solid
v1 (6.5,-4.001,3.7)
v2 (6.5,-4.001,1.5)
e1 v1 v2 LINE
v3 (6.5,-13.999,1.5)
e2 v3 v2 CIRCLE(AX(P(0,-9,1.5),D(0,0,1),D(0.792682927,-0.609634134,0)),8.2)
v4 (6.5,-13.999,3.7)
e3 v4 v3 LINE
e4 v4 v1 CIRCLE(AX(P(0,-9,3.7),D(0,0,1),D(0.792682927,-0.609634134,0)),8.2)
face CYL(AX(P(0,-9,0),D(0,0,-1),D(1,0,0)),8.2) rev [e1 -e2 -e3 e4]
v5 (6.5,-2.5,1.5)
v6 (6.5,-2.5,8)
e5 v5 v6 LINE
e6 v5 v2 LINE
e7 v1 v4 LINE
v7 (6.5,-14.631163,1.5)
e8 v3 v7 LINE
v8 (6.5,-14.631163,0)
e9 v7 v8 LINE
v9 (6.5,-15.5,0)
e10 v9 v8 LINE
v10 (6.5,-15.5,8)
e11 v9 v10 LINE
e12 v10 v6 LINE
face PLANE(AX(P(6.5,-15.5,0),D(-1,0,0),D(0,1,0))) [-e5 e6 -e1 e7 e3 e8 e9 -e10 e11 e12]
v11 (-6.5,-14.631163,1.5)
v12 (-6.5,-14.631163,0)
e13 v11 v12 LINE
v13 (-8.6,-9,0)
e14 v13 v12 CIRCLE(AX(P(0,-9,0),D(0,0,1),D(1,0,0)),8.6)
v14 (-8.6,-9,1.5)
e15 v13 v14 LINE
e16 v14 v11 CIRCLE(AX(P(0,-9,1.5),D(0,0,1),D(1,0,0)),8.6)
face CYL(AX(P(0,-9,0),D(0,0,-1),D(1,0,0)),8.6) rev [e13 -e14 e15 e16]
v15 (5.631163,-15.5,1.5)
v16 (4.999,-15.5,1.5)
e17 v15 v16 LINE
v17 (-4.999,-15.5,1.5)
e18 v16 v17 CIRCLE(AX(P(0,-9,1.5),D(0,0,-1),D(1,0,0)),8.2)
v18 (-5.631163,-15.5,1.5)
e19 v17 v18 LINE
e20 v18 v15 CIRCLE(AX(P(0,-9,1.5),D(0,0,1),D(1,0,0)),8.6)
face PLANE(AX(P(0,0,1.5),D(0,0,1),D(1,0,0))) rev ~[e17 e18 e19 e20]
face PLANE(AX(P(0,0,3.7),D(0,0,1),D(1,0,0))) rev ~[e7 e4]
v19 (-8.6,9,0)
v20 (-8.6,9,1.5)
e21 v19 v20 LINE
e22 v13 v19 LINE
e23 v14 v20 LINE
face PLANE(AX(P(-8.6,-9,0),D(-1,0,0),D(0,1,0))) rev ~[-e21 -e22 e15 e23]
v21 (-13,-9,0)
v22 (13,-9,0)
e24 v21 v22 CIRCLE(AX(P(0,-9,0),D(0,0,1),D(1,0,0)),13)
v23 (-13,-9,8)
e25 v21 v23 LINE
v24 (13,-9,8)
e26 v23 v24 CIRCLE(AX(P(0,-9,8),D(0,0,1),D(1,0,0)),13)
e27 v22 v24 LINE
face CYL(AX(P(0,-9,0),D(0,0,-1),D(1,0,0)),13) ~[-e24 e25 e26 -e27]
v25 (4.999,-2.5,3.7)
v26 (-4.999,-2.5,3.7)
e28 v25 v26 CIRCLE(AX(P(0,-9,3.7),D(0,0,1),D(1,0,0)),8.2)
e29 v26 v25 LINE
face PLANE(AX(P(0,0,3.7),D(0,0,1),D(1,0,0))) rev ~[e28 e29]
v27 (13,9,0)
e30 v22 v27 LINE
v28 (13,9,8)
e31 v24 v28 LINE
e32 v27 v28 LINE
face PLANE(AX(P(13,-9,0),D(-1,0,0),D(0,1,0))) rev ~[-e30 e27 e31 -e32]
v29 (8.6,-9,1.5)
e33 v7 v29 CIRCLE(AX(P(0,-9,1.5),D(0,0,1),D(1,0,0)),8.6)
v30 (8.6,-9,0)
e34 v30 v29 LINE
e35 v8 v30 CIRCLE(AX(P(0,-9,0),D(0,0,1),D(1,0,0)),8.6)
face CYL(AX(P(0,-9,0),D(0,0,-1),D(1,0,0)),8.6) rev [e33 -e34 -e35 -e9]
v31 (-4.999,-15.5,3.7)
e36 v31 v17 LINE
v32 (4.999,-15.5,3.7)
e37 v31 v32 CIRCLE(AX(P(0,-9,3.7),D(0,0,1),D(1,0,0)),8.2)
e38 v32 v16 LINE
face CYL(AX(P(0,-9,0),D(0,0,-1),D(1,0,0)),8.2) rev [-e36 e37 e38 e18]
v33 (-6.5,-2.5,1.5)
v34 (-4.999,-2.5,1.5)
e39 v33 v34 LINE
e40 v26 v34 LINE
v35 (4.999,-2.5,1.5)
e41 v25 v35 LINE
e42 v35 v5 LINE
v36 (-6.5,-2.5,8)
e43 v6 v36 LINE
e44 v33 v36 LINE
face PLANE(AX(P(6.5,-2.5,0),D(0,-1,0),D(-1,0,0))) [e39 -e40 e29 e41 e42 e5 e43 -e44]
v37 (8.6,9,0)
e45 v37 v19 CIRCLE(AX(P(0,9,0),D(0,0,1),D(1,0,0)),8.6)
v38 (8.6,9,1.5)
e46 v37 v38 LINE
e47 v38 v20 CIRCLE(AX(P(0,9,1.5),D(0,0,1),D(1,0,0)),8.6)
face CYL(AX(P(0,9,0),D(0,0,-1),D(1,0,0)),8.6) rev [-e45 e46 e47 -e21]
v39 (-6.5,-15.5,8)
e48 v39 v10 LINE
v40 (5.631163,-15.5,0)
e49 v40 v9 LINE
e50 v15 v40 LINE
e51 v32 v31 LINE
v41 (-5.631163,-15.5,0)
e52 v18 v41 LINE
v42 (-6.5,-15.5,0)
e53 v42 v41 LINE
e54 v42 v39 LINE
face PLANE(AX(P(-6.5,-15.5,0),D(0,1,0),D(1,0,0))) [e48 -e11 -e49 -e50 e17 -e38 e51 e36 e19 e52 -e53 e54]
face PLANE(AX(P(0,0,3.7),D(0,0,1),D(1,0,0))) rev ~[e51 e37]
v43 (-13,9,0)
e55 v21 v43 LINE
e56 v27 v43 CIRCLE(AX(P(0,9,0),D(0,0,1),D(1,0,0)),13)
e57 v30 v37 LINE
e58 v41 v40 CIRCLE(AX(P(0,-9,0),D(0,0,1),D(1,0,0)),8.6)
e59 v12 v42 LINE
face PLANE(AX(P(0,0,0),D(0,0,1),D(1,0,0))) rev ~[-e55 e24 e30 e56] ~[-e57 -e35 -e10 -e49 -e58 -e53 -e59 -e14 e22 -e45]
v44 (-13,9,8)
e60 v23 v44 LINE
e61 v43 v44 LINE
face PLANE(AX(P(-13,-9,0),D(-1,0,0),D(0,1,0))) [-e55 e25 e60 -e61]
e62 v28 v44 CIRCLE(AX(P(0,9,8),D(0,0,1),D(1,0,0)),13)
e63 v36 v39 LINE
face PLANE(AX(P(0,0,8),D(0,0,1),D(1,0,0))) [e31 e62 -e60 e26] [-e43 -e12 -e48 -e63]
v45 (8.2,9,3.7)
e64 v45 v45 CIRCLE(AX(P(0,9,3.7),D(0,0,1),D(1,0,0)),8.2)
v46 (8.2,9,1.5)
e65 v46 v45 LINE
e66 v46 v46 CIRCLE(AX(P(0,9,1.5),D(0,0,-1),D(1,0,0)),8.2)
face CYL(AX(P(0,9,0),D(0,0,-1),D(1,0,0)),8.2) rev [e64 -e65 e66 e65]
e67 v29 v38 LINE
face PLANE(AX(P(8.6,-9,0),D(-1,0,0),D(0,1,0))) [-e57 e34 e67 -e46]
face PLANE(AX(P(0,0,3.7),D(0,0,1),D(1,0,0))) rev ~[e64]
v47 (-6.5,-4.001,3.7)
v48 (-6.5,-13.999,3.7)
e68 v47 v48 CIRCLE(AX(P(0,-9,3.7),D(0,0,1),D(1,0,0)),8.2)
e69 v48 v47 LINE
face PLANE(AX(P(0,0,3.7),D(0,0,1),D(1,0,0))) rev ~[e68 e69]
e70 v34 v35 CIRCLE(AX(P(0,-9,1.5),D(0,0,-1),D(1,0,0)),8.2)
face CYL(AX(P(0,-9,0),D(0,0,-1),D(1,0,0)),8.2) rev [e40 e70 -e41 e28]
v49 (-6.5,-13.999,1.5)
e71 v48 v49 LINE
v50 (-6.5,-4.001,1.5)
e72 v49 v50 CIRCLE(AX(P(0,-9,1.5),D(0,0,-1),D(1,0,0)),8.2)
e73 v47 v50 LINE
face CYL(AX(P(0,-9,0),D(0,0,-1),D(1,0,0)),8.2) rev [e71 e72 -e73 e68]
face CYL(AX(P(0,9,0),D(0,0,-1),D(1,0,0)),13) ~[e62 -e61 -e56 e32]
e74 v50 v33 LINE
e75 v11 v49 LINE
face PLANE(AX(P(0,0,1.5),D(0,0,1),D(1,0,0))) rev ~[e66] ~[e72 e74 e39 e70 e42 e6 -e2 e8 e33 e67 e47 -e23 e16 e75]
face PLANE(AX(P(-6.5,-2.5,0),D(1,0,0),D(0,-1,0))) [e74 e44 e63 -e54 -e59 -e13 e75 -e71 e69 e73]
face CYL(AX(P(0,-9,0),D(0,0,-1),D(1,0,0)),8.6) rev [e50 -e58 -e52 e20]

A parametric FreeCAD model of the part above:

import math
import FreeCAD as App
import Part
import Sketcher
from FreeCAD import Vector
Q = App.Units.Quantity


def add_polygon(sketch, points):
    """Adds a closed chain of lines whose ends are joined by coincident constraints."""
    first, n = sketch.GeometryCount, len(points)
    for a, b in zip(points, points[1:] + points[:1]):
        sketch.addGeometry(Part.LineSegment(App.Vector(*a, 0), App.Vector(*b, 0)), False)
    for i in range(n):
        sketch.addConstraint(Sketcher.Constraint("Coincident", first + i, 2, first + (i + 1) % n, 1))

doc = App.newDocument("Part")
body = doc.addObject("PartDesign::Body", "Body")

sketch1 = body.newObject("Sketcher::SketchObject", "Sketch")
sketch1.AttachmentSupport = (doc.getObject("XY_Plane"), [""])
sketch1.MapMode = "FlatFace"
sketch1.addGeometry(Part.ArcOfCircle(Part.Circle(Vector(0, 9, 0), Vector(0, 0, 1), 13), math.radians(0), math.radians(180)), False)
sketch1.addGeometry(Part.LineSegment(Vector(-13, 9, 0), Vector(-13, -9, 0)), False)
sketch1.addGeometry(Part.ArcOfCircle(Part.Circle(Vector(0, -9, 0), Vector(0, 0, 1), 13), math.radians(180), math.radians(360)), False)
sketch1.addGeometry(Part.LineSegment(Vector(13, -9, 0), Vector(13, 9, 0)), False)
sketch1.addConstraint(Sketcher.Constraint("Tangent", 0, 2, 1, 1))
sketch1.addConstraint(Sketcher.Constraint("Tangent", 1, 2, 2, 1))
sketch1.addConstraint(Sketcher.Constraint("Tangent", 2, 2, 3, 1))
sketch1.addConstraint(Sketcher.Constraint("Tangent", 3, 2, 0, 1))
sketch1.addConstraint(Sketcher.Constraint("Vertical", 1))
sketch1.addConstraint(Sketcher.Constraint("Vertical", 3))
sketch1.addConstraint(Sketcher.Constraint("Symmetric", 0, 3, 2, 3, -1, 1))
sketch1.addConstraint(Sketcher.Constraint("Radius", 0, Q("13 mm")))
sketch1.addConstraint(Sketcher.Constraint("DistanceY", 1, 2, 1, 1, Q("18 mm")))
pad1 = body.newObject("PartDesign::Pad", "Pad")
pad1.Profile = sketch1
pad1.Length = 8

sketch2 = body.newObject("Sketcher::SketchObject", "Sketch001")
sketch2.AttachmentSupport = (doc.getObject("XY_Plane"), [""])
sketch2.MapMode = "FlatFace"
sketch2.addGeometry(Part.ArcOfCircle(Part.Circle(Vector(0, 9, 0), Vector(0, 0, 1), 9), math.radians(0), math.radians(180)), False)
sketch2.addGeometry(Part.LineSegment(Vector(-9, 9, 0), Vector(-9, -9, 0)), False)
sketch2.addGeometry(Part.ArcOfCircle(Part.Circle(Vector(0, -9, 0), Vector(0, 0, 1), 9), math.radians(180), math.radians(360)), False)
sketch2.addGeometry(Part.LineSegment(Vector(9, -9, 0), Vector(9, 9, 0)), False)
sketch2.addConstraint(Sketcher.Constraint("Tangent", 0, 2, 1, 1))
sketch2.addConstraint(Sketcher.Constraint("Tangent", 1, 2, 2, 1))
sketch2.addConstraint(Sketcher.Constraint("Tangent", 2, 2, 3, 1))
sketch2.addConstraint(Sketcher.Constraint("Tangent", 3, 2, 0, 1))
sketch2.addConstraint(Sketcher.Constraint("Vertical", 1))
sketch2.addConstraint(Sketcher.Constraint("Vertical", 3))
sketch2.addConstraint(Sketcher.Constraint("Symmetric", 0, 3, 2, 3, -1, 1))
sketch2.addConstraint(Sketcher.Constraint("Radius", 0, Q("8.6 mm")))
sketch2.addConstraint(Sketcher.Constraint("DistanceY", 1, 2, 1, 1, Q("18 mm")))
pocket1 = body.newObject("PartDesign::Pocket", "Pocket")
pocket1.Profile = sketch2
pocket1.Length = 1.5
pocket1.Reversed = True

sketch3 = body.newObject("Sketcher::SketchObject", "Sketch002")
sketch3.AttachmentSupport = (doc.getObject("XY_Plane"), [""])
sketch3.MapMode = "FlatFace"
sketch3.addGeometry(Part.Circle(Vector(0, 9, 0), Vector(0, 0, 1), 8), False)
sketch3.addGeometry(Part.Circle(Vector(0, -9, 0), Vector(0, 0, 1), 8), False)
sketch3.addConstraint(Sketcher.Constraint("Equal", 0, 1))
sketch3.addConstraint(Sketcher.Constraint("Symmetric", 0, 3, 1, 3, -1, 1))
sketch3.addConstraint(Sketcher.Constraint("PointOnObject", 0, 3, -2))
sketch3.addConstraint(Sketcher.Constraint("Diameter", 0, Q("16.4 mm")))
sketch3.addConstraint(Sketcher.Constraint("DistanceY", -1, 1, 0, 3, Q("9 mm")))
pocket2 = body.newObject("PartDesign::Pocket", "Pocket001")
pocket2.Profile = sketch3
pocket2.Length = 3.7
pocket2.Reversed = True

sketch4 = body.newObject("Sketcher::SketchObject", "Sketch003")
sketch4.AttachmentSupport = (doc.getObject("XY_Plane"), [""])
sketch4.MapMode = "FlatFace"
add_polygon(sketch4, [(-6, -2), (-6, -16), (6, -16), (6, -2)])
sketch4.addConstraint(Sketcher.Constraint("Vertical", 0))
sketch4.addConstraint(Sketcher.Constraint("Horizontal", 1))
sketch4.addConstraint(Sketcher.Constraint("Vertical", 2))
sketch4.addConstraint(Sketcher.Constraint("Horizontal", 3))
sketch4.addConstraint(Sketcher.Constraint("Equal", 3, 0))
sketch4.addConstraint(Sketcher.Constraint("DistanceX", 1, 1, 1, 2, Q("13 mm")))
sketch4.addConstraint(Sketcher.Constraint("DistanceX", 0, 2, -1, 1, Q("6.5 mm")))
sketch4.addConstraint(Sketcher.Constraint("DistanceY", 0, 2, -1, 1, Q("15.5 mm")))
pocket3 = body.newObject("PartDesign::Pocket", "Pocket002")
pocket3.Profile = sketch4
pocket3.Length = 8
pocket3.Reversed = True

doc.recompute()
